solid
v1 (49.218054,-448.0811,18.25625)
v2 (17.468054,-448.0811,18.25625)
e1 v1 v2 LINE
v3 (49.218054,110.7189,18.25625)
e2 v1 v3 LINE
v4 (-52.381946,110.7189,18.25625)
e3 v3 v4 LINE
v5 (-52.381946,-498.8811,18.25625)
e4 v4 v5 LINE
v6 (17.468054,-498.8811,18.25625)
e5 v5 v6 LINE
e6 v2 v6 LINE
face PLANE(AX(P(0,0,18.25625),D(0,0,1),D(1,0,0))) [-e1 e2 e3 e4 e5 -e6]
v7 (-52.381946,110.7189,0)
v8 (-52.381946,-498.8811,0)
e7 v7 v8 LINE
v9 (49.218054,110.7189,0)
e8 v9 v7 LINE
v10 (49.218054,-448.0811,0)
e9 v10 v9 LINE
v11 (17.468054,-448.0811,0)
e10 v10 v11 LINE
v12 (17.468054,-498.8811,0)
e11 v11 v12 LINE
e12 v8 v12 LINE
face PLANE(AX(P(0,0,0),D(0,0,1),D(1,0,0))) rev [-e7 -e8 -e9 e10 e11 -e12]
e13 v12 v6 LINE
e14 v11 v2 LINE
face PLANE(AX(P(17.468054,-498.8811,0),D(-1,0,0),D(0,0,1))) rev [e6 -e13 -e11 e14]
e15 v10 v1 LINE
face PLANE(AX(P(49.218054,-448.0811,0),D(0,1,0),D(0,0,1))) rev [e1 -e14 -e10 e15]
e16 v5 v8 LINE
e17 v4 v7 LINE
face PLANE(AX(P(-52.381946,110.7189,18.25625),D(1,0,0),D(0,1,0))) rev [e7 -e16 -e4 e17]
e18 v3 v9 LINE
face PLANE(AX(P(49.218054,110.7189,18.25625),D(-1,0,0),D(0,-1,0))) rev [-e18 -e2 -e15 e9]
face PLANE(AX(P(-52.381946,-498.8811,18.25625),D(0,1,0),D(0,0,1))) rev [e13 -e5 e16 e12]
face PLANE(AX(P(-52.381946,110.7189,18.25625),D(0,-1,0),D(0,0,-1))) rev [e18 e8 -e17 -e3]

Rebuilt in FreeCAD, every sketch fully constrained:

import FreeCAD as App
import Part
import Sketcher

V = App.Vector
Q = App.Units.Quantity


def add_polygon(sketch, points):
    """Adds a closed chain of lines whose ends are joined by coincident constraints."""
    first, n = sketch.GeometryCount, len(points)
    for a, b in zip(points, points[1:] + points[:1]):
        sketch.addGeometry(Part.LineSegment(App.Vector(*a, 0), App.Vector(*b, 0)), False)
    for i in range(n):
        sketch.addConstraint(Sketcher.Constraint("Coincident", first + i, 2, first + (i + 1) % n, 1))

doc = App.newDocument("Part")
params = doc.addObject("Spreadsheet::Sheet", "Params")
for row, (alias, value) in enumerate([
    ("sketch1_width", "4 in"),
    ("sketch1_height", "24 in"),
    ("pad1_length", "0.71875 in"),
    ("sketch2_height", "2 in"),
    ("sketch2_width", "1.25 in"),
], start=1):
    params.set(f"A{row}", alias)
    params.set(f"B{row}", "=" + value)
    params.setAlias(f"B{row}", alias)

body = doc.addObject("PartDesign::Body", "Body")

# Sketch on XY plane
sketch1 = body.newObject("Sketcher::SketchObject", "Sketch")
sketch1.AttachmentSupport = (doc.getObject("XY_Plane"), [""])
sketch1.MapMode = "FlatFace"
add_polygon(sketch1, [(-52, 111), (-52, -499), (49, -499), (49, 111)])  # lines 0-3
sketch1.addConstraint(Sketcher.Constraint("Vertical", 0))
sketch1.addConstraint(Sketcher.Constraint("Horizontal", 1))
sketch1.addConstraint(Sketcher.Constraint("Vertical", 2))
sketch1.addConstraint(Sketcher.Constraint("Horizontal", 3))
sketch1.addConstraint(Sketcher.Constraint("DistanceX", 1, 1, 1, 2, Q("4 in")))
sketch1.addConstraint(Sketcher.Constraint("DistanceY", 0, 2, 0, 1, Q("24 in")))
sketch1.addConstraint(Sketcher.Constraint("DistanceY", 0, 2, -1, 1, Q("498.8811 mm")))
sketch1.addConstraint(Sketcher.Constraint("DistanceX", 0, 2, -1, 1, Q("52.381946 mm")))
sketch1.setExpression("Constraints[8]", "Params.sketch1_width")
sketch1.setExpression("Constraints[9]", "Params.sketch1_height")
pad1 = body.newObject("PartDesign::Pad", "Pad")
pad1.Profile = sketch1
pad1.setExpression("Length", "Params.pad1_length")

# Sketch on XY plane
sketch2 = body.newObject("Sketcher::SketchObject", "Sketch001")
sketch2.AttachmentSupport = (doc.getObject("XY_Plane"), [""])
sketch2.MapMode = "FlatFace"
sketch2.AttachmentOffset = App.Placement(V(0, 0, 0.71875 * 25.4), App.Rotation())
add_polygon(sketch2, [(17, -448), (17, -499), (49, -499), (49, -448)])  # lines 0-3
sketch2.addConstraint(Sketcher.Constraint("Vertical", 0))
sketch2.addConstraint(Sketcher.Constraint("Horizontal", 1))
sketch2.addConstraint(Sketcher.Constraint("Vertical", 2))
sketch2.addConstraint(Sketcher.Constraint("Horizontal", 3))
sketch2.addConstraint(Sketcher.Constraint("DistanceY", 0, 2, 0, 1, Q("2 in")))
sketch2.addConstraint(Sketcher.Constraint("DistanceX", 1, 1, 1, 2, Q("1.25 in")))
sketch2.addConstraint(Sketcher.Constraint("DistanceY", 0, 2, -1, 1, Q("498.8811 mm")))
sketch2.addConstraint(Sketcher.Constraint("DistanceX", -1, 1, 0, 2, Q("17.468054 mm")))
sketch2.setExpression("Constraints[8]", "Params.sketch2_height")
sketch2.setExpression("Constraints[9]", "Params.sketch2_width")
pocket1 = body.newObject("PartDesign::Pocket", "Pocket")
pocket1.Profile = sketch2
pocket1.Type = "ThroughAll"

doc.recompute()
